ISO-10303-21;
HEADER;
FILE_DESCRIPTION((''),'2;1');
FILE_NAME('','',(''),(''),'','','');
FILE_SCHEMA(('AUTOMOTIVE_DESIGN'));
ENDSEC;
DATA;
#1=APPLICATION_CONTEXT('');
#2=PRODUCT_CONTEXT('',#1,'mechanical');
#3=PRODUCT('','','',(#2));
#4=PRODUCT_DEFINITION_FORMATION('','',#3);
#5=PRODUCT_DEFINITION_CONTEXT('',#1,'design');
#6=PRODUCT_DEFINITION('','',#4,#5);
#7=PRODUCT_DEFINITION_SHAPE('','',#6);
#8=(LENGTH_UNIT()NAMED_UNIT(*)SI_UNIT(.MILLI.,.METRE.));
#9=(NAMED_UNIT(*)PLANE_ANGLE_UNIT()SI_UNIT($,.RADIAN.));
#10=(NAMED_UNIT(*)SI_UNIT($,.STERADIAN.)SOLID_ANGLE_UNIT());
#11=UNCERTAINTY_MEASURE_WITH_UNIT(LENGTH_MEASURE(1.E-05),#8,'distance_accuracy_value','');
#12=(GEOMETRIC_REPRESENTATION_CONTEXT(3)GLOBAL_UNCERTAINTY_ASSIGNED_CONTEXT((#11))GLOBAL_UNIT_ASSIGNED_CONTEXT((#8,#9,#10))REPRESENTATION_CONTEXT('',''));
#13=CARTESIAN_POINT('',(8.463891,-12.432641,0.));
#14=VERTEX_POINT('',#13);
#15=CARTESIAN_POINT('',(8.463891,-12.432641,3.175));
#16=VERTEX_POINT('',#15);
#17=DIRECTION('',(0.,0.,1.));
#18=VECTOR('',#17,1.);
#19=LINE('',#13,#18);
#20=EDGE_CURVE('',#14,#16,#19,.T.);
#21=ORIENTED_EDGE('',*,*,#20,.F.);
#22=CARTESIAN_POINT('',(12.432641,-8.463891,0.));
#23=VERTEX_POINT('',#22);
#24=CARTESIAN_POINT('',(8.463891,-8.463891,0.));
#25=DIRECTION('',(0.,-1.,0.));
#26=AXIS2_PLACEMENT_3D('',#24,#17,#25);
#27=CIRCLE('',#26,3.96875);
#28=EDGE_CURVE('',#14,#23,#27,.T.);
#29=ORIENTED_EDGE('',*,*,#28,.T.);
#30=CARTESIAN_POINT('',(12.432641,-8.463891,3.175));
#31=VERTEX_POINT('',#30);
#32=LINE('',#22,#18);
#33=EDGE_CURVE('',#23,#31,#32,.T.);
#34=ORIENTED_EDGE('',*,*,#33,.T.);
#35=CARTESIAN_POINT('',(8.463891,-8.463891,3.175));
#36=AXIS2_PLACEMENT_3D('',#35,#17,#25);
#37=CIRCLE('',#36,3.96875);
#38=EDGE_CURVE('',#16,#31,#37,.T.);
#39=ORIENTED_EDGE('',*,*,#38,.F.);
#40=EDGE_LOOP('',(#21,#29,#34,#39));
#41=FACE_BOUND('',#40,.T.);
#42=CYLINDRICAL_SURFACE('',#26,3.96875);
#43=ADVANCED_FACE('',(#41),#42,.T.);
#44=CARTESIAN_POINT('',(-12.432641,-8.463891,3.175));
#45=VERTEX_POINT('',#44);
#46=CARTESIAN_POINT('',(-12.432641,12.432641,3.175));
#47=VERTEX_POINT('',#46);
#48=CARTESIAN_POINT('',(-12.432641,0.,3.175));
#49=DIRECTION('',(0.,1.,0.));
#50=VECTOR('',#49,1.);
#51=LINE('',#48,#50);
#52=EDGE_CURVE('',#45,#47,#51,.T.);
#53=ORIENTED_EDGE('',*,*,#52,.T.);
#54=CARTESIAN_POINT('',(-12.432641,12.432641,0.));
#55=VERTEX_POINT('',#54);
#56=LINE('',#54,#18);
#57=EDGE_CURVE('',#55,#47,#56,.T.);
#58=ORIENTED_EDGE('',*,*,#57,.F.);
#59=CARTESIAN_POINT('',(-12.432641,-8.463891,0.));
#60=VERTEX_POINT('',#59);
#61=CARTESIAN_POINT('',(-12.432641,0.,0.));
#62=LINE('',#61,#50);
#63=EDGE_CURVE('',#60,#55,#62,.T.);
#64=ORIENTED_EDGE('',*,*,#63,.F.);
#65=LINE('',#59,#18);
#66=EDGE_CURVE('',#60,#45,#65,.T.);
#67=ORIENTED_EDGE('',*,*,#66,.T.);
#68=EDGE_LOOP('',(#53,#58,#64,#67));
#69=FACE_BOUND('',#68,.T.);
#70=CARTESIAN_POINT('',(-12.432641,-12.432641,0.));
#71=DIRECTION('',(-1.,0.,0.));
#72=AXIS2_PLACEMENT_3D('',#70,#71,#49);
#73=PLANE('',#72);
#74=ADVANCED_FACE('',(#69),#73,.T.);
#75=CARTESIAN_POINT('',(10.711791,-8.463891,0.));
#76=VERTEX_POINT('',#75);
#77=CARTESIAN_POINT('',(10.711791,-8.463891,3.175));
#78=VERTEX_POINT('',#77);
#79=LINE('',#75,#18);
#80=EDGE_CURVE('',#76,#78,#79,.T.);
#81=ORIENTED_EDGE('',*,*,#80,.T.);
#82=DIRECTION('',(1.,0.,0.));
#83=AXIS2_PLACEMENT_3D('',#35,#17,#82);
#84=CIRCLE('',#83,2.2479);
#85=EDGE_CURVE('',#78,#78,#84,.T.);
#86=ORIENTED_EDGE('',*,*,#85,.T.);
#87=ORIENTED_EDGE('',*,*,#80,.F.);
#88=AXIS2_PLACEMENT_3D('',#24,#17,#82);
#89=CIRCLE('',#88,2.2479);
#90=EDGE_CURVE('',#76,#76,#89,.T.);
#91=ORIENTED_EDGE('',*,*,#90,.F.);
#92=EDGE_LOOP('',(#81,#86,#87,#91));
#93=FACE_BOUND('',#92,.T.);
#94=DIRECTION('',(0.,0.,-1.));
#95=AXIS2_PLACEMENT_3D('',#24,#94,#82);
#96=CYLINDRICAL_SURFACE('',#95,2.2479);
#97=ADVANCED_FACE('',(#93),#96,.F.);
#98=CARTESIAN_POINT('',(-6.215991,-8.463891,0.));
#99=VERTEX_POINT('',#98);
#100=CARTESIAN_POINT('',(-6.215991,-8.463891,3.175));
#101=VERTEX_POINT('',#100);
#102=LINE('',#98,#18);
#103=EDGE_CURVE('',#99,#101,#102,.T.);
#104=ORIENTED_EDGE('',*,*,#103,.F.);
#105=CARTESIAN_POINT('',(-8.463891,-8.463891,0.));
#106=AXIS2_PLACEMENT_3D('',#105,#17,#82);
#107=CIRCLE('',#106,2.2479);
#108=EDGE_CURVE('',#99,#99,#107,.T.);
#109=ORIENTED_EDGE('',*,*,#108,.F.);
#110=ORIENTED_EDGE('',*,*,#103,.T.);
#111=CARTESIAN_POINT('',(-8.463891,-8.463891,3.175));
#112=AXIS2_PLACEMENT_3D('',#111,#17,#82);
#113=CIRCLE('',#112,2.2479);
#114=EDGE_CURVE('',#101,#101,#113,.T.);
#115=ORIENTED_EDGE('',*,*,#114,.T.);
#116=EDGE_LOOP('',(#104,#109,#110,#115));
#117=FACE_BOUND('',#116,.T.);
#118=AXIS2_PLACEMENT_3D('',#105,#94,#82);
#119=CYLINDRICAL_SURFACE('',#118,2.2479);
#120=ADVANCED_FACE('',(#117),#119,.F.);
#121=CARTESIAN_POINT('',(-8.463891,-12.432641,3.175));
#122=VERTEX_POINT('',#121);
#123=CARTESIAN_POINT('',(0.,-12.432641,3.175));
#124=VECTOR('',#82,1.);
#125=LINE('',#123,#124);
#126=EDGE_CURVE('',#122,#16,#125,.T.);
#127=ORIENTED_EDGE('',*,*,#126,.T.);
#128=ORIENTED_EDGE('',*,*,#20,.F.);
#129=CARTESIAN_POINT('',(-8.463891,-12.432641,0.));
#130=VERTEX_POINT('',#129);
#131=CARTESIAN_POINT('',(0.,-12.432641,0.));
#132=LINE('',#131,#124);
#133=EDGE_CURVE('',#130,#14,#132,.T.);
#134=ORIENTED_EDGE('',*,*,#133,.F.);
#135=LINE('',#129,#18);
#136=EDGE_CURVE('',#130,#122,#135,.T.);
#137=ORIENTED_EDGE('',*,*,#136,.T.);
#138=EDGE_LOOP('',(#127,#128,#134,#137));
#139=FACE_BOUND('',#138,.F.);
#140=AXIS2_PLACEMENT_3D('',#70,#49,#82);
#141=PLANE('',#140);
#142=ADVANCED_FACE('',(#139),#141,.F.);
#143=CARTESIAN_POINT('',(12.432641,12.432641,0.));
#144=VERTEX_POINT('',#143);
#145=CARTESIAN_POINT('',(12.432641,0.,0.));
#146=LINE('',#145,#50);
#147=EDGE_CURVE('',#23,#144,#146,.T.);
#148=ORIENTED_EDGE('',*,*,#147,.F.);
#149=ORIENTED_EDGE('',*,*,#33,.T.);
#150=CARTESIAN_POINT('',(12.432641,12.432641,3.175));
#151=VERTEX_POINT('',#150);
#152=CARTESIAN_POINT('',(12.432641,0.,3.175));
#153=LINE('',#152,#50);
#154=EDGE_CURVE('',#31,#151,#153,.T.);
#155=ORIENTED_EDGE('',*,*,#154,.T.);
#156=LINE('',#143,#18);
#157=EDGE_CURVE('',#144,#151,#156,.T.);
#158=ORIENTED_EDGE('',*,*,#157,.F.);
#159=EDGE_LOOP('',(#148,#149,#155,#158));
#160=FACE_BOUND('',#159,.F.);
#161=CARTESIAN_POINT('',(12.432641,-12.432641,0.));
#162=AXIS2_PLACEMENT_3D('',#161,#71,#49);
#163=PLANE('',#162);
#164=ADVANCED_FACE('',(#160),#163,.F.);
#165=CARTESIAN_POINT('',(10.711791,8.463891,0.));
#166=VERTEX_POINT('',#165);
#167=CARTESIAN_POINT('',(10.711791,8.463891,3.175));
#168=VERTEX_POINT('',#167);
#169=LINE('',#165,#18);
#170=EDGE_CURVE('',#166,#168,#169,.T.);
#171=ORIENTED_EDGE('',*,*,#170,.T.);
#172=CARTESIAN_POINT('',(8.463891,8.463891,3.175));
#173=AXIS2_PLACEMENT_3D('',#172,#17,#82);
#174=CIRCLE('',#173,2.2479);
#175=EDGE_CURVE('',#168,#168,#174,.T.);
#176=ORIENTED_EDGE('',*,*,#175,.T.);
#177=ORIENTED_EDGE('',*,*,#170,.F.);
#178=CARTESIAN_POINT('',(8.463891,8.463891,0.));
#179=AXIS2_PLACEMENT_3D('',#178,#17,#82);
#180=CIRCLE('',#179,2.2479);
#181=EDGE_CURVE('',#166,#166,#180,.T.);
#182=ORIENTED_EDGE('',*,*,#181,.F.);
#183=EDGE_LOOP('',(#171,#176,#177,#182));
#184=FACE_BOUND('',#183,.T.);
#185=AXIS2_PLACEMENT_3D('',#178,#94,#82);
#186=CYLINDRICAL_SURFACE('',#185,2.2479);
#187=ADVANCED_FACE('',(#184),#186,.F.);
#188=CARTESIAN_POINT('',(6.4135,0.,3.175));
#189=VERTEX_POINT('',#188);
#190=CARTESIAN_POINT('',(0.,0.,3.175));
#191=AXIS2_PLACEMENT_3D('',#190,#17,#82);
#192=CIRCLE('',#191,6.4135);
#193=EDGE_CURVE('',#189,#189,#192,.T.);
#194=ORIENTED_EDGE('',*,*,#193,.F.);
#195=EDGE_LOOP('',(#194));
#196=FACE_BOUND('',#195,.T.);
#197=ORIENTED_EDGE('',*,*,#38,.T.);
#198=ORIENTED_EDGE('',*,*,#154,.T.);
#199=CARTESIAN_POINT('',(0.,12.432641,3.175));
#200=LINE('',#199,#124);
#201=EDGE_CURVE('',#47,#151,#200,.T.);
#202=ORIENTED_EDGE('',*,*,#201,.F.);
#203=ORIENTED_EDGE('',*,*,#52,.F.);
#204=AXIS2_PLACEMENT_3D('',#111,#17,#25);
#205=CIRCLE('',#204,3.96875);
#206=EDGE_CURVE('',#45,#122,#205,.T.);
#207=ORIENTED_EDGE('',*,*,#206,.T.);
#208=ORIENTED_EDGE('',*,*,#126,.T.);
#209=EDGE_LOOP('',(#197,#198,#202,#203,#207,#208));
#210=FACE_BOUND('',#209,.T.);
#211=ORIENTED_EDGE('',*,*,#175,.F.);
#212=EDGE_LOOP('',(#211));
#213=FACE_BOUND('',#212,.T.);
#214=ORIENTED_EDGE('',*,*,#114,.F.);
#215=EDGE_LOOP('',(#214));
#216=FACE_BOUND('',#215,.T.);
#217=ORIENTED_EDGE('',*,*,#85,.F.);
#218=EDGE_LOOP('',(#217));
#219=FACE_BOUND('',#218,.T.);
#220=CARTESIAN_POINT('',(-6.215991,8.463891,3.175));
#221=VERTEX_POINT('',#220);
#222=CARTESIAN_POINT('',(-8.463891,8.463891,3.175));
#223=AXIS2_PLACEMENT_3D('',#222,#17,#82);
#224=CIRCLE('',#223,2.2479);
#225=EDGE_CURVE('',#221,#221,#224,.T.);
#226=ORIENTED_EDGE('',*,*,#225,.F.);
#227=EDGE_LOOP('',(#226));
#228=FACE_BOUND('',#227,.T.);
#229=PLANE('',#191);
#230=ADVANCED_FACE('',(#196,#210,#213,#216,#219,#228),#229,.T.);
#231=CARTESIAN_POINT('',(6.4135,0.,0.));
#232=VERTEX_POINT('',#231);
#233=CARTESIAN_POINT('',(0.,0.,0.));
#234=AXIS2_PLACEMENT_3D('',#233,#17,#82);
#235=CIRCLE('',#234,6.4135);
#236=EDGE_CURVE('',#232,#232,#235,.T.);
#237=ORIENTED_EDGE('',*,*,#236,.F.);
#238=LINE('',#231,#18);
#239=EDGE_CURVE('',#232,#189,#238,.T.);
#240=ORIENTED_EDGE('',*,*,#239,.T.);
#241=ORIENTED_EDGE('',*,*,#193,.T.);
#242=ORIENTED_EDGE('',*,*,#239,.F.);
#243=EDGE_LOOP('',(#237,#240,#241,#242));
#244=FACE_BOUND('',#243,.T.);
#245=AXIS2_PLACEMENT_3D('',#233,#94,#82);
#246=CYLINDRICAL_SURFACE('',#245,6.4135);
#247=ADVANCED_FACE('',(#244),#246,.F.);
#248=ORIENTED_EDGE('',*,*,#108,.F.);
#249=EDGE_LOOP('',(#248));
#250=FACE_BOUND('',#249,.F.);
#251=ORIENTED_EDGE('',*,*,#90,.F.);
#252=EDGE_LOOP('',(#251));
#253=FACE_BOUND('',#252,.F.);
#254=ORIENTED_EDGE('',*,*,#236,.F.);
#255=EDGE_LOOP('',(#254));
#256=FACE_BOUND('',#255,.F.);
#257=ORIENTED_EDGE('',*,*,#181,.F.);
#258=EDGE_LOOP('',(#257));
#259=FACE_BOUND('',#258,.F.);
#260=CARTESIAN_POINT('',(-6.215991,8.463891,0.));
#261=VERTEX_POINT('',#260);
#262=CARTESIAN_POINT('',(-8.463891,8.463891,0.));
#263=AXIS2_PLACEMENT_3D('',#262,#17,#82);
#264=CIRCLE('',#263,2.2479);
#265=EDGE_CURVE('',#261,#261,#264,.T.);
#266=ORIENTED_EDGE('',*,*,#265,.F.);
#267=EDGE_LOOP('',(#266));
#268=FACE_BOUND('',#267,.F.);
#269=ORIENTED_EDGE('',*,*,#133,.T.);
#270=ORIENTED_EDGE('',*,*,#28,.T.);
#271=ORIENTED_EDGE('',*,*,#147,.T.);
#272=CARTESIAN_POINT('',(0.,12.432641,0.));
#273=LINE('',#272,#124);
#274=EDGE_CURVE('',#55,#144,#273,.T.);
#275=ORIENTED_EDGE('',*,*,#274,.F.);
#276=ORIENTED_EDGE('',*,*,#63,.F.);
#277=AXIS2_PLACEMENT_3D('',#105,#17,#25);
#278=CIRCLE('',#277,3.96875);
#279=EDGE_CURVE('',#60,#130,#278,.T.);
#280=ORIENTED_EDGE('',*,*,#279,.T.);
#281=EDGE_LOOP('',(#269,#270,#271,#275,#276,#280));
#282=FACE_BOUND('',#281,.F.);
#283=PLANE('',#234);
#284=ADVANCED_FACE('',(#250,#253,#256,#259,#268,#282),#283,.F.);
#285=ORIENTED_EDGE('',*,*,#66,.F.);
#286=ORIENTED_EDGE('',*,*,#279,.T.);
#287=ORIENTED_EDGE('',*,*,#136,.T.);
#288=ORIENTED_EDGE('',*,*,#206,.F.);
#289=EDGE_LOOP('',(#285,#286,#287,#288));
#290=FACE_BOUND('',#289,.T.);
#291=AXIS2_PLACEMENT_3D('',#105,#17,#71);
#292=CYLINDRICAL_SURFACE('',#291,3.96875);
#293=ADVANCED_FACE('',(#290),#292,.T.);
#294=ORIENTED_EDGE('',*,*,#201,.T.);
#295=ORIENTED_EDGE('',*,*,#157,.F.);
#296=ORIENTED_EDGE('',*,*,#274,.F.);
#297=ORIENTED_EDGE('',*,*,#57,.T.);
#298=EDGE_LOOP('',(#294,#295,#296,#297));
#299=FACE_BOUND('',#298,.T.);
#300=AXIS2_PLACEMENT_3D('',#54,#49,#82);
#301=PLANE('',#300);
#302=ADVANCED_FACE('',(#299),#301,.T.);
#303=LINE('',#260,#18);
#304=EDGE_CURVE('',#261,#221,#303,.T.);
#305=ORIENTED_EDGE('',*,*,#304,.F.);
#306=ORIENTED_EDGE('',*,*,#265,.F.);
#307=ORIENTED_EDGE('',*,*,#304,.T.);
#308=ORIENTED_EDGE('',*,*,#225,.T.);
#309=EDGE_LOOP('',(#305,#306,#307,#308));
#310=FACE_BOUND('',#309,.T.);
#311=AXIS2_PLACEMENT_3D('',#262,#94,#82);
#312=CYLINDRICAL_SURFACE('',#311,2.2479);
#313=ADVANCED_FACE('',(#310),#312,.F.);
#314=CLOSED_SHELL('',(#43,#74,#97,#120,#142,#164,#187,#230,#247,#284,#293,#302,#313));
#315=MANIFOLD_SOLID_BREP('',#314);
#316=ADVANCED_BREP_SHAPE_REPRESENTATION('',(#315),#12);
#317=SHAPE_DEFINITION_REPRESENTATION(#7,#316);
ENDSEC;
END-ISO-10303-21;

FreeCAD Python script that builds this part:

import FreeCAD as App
import Part
import Sketcher

V = App.Vector
Q = App.Units.Quantity


def edges_at(feature, points):
    """Names of the edges that pass closest to the given points."""
    edges = feature.Shape.Edges
    near = lambda p: min(range(len(edges)), key=lambda i: edges[i].distToShape(Part.Vertex(*p))[0])
    return sorted({f"Edge{near(p) + 1}" for p in points})


def add_polygon(sketch, points):
    """Adds a closed chain of lines whose ends are joined by coincident constraints."""
    first, n = sketch.GeometryCount, len(points)
    for a, b in zip(points, points[1:] + points[:1]):
        sketch.addGeometry(Part.LineSegment(App.Vector(*a, 0), App.Vector(*b, 0)), False)
    for i in range(n):
        sketch.addConstraint(Sketcher.Constraint("Coincident", first + i, 2, first + (i + 1) % n, 1))

doc = App.newDocument("Part")
body = doc.addObject("PartDesign::Body", "Body")

sketch1 = body.newObject("Sketcher::SketchObject", "Sketch")
sketch1.AttachmentSupport = (doc.getObject("XY_Plane"), [""])
sketch1.MapMode = "FlatFace"
add_polygon(sketch1, [(-12.4, 12.4), (-12.4, -12.4), (12.4, -12.4), (12.4, 12.4)])
sketch1.addGeometry(Part.Circle(V(-8.5, -8.5, 0), V(0, 0, 1), 2.2), False)
sketch1.addGeometry(Part.Circle(V(0, 0, 0), V(0, 0, 1), 6.4), False)
sketch1.addGeometry(Part.Circle(V(8.5, -8.5, 0), V(0, 0, 1), 2.2), False)
sketch1.addGeometry(Part.Circle(V(-8.5, 8.5, 0), V(0, 0, 1), 2.2), False)
sketch1.addGeometry(Part.Circle(V(8.5, 8.5, 0), V(0, 0, 1), 2.2), False)
sketch1.addConstraint([
    Sketcher.Constraint("Vertical", 0),
    Sketcher.Constraint("Horizontal", 1),
    Sketcher.Constraint("Vertical", 2),
    Sketcher.Constraint("Horizontal", 3),
    Sketcher.Constraint("Coincident", 5, 3, -1, 1),
    Sketcher.Constraint("Equal", 4, 6),
    Sketcher.Constraint("Equal", 6, 7),
    Sketcher.Constraint("Equal", 7, 8),
    Sketcher.Constraint("Symmetric", 6, 3, 7, 3, -1, 1),
    Sketcher.Constraint("Symmetric", 4, 3, 8, 3, -1, 1),
    Sketcher.Constraint("Symmetric", 0, 2, 2, 2, -1, 1),
    Sketcher.Constraint("Symmetric", 4, 3, 6, 3, -2),
    Sketcher.Constraint("Equal", 3, 0),
    Sketcher.Constraint("Diameter", 4, Q("0.177 in")),
    Sketcher.Constraint("Diameter", 5, Q("0.505 in")),
    Sketcher.Constraint("DistanceX", 0, 2, 4, 3, Q("0.15625 in")),
    Sketcher.Constraint("DistanceY", 0, 2, 4, 3, Q("0.15625 in")),
    Sketcher.Constraint("DistanceX", 1, 1, 1, 2, Q("24.865282 mm")),
])
pad1 = body.newObject("PartDesign::Pad", "Pad")
pad1.Profile = sketch1
pad1.Length = Q("0.125 in")
doc.recompute()

fillet = body.newObject("PartDesign::Fillet", "Fillet")
fillet.Base = (pad1, edges_at(pad1, [(12.433, -12.433, 1.587), (-12.433, -12.433, 1.587)]))
fillet.Radius = Q("0.15625 in")

doc.recompute()
